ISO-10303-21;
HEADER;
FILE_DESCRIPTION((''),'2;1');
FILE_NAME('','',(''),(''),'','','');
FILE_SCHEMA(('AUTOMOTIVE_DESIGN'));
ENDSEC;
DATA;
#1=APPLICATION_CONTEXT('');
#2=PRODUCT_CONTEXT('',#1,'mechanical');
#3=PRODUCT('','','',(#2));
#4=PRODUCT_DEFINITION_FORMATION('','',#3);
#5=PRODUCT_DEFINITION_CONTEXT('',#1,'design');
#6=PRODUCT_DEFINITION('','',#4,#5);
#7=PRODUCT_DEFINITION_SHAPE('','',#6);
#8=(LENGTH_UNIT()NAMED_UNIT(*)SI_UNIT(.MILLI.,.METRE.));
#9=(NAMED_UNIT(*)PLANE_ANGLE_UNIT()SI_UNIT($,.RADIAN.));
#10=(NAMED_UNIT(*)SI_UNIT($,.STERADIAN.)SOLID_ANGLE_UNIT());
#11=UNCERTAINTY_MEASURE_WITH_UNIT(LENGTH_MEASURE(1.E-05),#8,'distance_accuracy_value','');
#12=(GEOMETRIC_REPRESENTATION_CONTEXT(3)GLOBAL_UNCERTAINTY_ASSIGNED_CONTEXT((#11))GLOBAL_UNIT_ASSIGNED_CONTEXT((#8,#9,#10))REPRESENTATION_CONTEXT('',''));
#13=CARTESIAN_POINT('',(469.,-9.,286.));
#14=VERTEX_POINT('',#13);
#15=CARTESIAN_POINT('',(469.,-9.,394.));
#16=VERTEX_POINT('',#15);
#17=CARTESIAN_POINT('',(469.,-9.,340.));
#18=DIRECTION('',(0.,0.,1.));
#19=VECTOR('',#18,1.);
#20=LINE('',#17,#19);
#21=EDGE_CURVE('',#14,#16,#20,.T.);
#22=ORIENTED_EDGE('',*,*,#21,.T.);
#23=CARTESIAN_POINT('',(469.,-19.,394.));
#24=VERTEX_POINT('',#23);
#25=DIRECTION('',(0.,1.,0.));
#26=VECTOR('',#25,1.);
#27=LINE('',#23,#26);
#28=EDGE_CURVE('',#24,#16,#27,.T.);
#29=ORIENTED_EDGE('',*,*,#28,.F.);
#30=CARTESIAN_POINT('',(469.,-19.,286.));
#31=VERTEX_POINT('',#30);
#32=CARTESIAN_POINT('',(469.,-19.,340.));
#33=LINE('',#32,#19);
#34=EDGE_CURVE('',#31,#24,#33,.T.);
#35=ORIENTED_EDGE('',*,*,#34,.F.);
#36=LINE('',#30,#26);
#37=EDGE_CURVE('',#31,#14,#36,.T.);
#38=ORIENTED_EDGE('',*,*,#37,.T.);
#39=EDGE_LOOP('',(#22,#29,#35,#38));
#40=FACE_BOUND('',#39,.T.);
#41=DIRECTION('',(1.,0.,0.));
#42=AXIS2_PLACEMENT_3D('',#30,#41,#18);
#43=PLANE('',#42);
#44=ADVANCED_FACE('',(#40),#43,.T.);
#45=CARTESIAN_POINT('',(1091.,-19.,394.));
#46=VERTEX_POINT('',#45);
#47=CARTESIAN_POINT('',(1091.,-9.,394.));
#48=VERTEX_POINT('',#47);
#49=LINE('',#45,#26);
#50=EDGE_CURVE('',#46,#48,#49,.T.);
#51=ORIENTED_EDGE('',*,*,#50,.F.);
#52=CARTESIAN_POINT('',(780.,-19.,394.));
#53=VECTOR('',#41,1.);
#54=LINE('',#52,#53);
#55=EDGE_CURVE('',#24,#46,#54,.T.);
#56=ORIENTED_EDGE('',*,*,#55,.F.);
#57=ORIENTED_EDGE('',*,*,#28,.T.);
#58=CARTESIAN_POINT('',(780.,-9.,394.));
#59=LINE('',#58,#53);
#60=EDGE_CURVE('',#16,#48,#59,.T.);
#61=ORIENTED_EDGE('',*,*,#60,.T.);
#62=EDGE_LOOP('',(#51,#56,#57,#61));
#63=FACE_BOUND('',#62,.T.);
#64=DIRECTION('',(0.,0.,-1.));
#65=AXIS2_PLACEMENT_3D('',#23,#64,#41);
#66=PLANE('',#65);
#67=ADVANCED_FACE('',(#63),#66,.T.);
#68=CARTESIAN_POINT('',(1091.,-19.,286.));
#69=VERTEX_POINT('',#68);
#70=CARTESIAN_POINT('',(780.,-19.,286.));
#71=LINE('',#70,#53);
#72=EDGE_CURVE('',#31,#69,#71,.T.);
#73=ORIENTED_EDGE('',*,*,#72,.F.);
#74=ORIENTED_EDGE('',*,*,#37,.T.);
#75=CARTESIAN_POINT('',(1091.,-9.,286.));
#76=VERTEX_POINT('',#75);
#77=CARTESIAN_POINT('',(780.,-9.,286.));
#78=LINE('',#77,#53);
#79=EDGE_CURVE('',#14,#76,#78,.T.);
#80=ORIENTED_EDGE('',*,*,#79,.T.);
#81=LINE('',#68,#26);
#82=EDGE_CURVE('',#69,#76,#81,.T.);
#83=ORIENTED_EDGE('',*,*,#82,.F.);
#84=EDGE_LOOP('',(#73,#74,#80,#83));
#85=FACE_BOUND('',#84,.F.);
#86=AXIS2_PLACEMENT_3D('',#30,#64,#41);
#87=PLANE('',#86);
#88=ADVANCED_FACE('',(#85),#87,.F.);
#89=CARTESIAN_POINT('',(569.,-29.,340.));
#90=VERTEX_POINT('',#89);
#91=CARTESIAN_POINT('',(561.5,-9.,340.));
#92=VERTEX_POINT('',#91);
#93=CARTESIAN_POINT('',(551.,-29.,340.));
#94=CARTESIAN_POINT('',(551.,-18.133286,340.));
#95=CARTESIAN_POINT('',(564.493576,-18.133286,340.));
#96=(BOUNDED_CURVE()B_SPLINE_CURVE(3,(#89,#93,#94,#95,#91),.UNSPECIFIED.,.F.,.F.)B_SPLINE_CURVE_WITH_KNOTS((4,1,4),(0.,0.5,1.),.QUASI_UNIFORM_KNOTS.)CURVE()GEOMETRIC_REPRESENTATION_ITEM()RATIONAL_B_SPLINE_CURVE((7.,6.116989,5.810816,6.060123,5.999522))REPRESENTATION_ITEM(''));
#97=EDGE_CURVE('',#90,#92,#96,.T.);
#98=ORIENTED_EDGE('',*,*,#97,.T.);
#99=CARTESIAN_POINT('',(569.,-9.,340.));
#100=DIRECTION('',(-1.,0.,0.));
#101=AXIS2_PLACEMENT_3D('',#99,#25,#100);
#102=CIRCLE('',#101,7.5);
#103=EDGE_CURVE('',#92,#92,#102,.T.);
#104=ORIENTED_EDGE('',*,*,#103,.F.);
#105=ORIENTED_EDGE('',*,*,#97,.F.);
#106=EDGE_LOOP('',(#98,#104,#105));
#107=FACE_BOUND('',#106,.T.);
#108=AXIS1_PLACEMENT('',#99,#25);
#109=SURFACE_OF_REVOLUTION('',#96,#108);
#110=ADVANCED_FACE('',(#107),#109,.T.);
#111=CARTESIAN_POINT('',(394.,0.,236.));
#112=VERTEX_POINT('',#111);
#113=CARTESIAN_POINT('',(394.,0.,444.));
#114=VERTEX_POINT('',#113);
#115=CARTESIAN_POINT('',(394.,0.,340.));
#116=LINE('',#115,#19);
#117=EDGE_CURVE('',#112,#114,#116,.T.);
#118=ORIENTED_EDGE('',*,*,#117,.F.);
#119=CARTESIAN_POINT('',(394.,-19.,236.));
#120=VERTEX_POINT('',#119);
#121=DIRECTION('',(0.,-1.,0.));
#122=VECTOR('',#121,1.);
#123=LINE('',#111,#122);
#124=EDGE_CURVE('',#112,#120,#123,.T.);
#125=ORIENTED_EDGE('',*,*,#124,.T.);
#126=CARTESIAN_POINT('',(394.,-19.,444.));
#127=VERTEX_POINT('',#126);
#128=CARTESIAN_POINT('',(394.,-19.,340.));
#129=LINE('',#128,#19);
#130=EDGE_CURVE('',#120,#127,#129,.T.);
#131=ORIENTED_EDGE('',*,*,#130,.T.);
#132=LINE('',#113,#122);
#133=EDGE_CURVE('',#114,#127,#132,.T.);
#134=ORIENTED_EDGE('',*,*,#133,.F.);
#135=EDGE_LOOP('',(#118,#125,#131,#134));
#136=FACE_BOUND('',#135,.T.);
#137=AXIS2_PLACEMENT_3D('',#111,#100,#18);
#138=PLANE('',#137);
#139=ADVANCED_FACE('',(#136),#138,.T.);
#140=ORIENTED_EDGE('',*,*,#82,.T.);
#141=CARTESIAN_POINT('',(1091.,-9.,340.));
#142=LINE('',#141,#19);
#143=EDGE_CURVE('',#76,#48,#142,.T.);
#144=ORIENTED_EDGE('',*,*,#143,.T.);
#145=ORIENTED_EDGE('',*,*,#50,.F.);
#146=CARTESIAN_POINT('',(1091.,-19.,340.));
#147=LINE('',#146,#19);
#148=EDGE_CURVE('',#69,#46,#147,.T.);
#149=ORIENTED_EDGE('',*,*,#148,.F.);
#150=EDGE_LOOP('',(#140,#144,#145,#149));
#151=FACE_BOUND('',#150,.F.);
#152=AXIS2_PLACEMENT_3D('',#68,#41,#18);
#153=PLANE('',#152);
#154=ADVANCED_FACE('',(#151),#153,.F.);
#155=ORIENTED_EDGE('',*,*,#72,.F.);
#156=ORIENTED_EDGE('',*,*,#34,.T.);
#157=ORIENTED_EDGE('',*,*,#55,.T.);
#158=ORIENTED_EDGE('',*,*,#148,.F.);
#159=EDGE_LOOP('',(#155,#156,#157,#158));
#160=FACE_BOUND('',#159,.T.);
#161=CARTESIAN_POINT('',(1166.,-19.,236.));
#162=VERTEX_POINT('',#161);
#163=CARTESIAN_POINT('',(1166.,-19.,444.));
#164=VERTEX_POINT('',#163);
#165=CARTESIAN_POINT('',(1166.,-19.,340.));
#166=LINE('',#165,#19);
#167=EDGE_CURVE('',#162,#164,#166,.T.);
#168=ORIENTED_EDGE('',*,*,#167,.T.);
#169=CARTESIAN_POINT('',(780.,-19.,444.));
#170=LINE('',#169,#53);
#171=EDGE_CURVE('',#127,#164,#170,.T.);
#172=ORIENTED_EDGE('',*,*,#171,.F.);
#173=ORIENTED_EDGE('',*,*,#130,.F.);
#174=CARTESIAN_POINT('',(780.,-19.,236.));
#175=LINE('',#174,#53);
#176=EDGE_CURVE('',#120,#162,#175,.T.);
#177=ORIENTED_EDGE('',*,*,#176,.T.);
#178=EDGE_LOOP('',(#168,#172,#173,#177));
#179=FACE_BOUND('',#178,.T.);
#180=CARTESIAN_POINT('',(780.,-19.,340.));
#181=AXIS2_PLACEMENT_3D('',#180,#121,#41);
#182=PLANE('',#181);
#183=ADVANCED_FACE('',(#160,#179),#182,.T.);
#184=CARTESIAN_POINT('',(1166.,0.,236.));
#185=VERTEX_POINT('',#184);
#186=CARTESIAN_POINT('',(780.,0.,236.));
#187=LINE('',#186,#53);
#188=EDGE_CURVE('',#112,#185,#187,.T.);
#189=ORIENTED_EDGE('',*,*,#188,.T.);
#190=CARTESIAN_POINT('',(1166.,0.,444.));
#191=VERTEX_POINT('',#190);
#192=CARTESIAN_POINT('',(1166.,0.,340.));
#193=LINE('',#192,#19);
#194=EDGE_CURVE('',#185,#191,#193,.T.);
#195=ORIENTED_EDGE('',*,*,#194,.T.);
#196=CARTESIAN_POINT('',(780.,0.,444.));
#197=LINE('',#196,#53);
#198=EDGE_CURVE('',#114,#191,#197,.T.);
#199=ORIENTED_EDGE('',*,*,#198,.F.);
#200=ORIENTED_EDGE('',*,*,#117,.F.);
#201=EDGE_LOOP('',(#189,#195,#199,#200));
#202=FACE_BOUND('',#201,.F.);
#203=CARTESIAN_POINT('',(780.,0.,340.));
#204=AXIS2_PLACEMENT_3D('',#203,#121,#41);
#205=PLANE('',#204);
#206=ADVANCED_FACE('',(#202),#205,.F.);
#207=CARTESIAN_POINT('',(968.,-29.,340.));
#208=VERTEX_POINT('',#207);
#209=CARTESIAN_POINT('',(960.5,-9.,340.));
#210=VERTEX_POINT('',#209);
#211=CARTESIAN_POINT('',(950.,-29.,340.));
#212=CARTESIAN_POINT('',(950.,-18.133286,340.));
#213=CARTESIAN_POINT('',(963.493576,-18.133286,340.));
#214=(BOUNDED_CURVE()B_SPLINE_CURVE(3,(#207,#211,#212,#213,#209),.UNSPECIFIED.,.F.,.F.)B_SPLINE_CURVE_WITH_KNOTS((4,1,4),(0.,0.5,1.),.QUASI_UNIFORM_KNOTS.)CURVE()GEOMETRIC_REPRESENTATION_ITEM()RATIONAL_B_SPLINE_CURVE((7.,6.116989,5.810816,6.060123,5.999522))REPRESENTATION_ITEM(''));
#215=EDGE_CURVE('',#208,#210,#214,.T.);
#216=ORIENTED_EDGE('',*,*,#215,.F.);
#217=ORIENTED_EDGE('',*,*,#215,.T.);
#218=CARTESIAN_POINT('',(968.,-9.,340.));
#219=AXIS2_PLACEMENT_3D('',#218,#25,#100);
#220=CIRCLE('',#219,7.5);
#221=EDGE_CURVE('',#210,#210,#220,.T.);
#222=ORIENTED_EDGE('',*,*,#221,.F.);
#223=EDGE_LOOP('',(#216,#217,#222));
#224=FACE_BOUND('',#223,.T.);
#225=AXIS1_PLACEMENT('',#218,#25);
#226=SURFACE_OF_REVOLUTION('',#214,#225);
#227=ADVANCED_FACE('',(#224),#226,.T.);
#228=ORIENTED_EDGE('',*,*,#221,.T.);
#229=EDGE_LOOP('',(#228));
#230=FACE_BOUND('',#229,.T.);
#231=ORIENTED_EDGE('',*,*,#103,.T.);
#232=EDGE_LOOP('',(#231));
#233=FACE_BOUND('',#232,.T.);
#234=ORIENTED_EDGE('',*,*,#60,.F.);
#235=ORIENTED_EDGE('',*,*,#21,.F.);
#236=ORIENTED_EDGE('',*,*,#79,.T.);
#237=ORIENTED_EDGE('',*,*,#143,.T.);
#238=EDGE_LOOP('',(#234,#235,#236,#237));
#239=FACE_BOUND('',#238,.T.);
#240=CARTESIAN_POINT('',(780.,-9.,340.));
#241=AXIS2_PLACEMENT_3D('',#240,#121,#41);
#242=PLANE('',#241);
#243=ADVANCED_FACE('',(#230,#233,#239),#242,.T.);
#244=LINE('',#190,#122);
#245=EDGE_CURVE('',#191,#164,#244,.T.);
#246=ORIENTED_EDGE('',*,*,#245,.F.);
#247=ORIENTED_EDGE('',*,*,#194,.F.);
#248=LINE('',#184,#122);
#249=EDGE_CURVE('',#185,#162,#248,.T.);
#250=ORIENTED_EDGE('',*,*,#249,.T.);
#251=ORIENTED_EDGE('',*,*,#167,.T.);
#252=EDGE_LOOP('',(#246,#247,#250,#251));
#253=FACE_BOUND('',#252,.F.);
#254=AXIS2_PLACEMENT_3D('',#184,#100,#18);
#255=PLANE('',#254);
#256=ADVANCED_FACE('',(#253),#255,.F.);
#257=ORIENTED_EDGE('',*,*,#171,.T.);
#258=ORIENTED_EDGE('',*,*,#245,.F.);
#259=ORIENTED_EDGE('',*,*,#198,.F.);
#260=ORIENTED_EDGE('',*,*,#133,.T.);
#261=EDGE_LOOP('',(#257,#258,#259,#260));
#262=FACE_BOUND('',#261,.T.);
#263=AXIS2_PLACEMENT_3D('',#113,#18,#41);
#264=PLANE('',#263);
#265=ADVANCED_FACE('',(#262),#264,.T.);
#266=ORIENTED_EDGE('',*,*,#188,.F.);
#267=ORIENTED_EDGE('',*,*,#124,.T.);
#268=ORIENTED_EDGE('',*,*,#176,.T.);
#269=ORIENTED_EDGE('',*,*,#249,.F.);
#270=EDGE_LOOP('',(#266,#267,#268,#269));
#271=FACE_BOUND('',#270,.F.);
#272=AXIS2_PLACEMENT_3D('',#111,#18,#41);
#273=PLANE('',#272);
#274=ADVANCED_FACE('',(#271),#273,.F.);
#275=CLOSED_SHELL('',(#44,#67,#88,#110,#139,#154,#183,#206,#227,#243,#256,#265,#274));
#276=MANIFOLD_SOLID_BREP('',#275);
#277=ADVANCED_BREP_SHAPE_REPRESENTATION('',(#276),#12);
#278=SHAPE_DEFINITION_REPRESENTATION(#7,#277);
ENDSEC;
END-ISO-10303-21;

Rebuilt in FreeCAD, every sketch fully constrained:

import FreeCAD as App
import Part
import Sketcher
from FreeCAD import Vector


def add_polygon(sketch, points):
    """Adds a closed chain of lines whose ends are joined by coincident constraints."""
    first, n = sketch.GeometryCount, len(points)
    for a, b in zip(points, points[1:] + points[:1]):
        sketch.addGeometry(Part.LineSegment(App.Vector(*a, 0), App.Vector(*b, 0)), False)
    for i in range(n):
        sketch.addConstraint(Sketcher.Constraint("Coincident", first + i, 2, first + (i + 1) % n, 1))

doc = App.newDocument("Part")
body = doc.addObject("PartDesign::Body", "Body")

# Sketch on XZ plane
sketch1 = body.newObject("Sketcher::SketchObject", "Sketch")
sketch1.AttachmentSupport = (doc.getObject("XZ_Plane"), [""])
sketch1.MapMode = "FlatFace"
add_polygon(sketch1, [(0, 208), (0, 0), (772, 0), (772, 208)])  # lines 0-3
sketch1.addConstraint(Sketcher.Constraint("Vertical", 0))
sketch1.addConstraint(Sketcher.Constraint("Horizontal", 1))
sketch1.addConstraint(Sketcher.Constraint("Vertical", 2))
sketch1.addConstraint(Sketcher.Constraint("Horizontal", 3))
sketch1.addConstraint(Sketcher.Constraint("Coincident", 0, 2, -1, 1))
sketch1.addConstraint(Sketcher.Constraint("DistanceX", 1, 1, 1, 2, 772.0))
sketch1.addConstraint(Sketcher.Constraint("DistanceY", 0, 2, 0, 1, 208.0))
pad1 = body.newObject("PartDesign::Pad", "Pad")
pad1.Profile = sketch1
pad1.Length = 19

# Sketch on XZ plane
sketch2 = body.newObject("Sketcher::SketchObject", "Sketch001")
sketch2.AttachmentSupport = (doc.getObject("XZ_Plane"), [""])
sketch2.MapMode = "FlatFace"
sketch2.AttachmentOffset = App.Placement(Vector(0, 0, 19), App.Rotation())
add_polygon(sketch2, [(75, 158), (75, 50), (697, 50), (697, 158)])  # lines 0-3
sketch2.addConstraint(Sketcher.Constraint("Vertical", 0))
sketch2.addConstraint(Sketcher.Constraint("Horizontal", 1))
sketch2.addConstraint(Sketcher.Constraint("Vertical", 2))
sketch2.addConstraint(Sketcher.Constraint("Horizontal", 3))
sketch2.addConstraint(Sketcher.Constraint("DistanceX", 1, 1, 1, 2, 622.0))
sketch2.addConstraint(Sketcher.Constraint("DistanceY", 0, 2, 0, 1, 108.0))
sketch2.addConstraint(Sketcher.Constraint("DistanceX", -1, 1, 0, 2, 75.0))
sketch2.addConstraint(Sketcher.Constraint("DistanceY", -1, 1, 0, 2, 50.0))
pocket1 = body.newObject("PartDesign::Pocket", "Pocket")
pocket1.Profile = sketch2
pocket1.Length = 10

# Sketch on XY plane
sketch3 = body.newObject("Sketcher::SketchObject", "Sketch002")
sketch3.AttachmentSupport = (doc.getObject("XY_Plane"), [""])
sketch3.MapMode = "FlatFace"
sketch3.AttachmentOffset = App.Placement(Vector(0, 0, 104), App.Rotation())
sketch3.addGeometry(Part.LineSegment(Vector(175, -29, 0), Vector(175, -9, 0)), False)
sketch3.addGeometry(Part.LineSegment(Vector(175, -9, 0), Vector(167.5, -9, 0)), False)
sketch3.addGeometry(Part.BSplineCurve([Vector(175, -29, 0), Vector(157, -29, 0), Vector(157, -18.133286, 0), Vector(170.493576, -18.133286, 0), Vector(167.5, -9, 0)], [4, 1, 4], [0, 0.5, 1], False, 3, [7, 6.116989, 5.810816, 6.060123, 5.999522], False), False)
sketch3.addGeometry(Part.LineSegment(Vector(175, -29, 0), Vector(175, -9, 0)), True)  # axis
sketch3.addConstraint(Sketcher.Constraint("Block", 2))
sketch3.addConstraint(Sketcher.Constraint("Coincident", 0, 2, 1, 1))
sketch3.addConstraint(Sketcher.Constraint("Coincident", 1, 2, 2, 2))
sketch3.addConstraint(Sketcher.Constraint("Coincident", 2, 1, 0, 1))
sketch3.addConstraint(Sketcher.Constraint("Vertical", 0))
sketch3.addConstraint(Sketcher.Constraint("Horizontal", 1))
sketch3.addConstraint(Sketcher.Constraint("Vertical", 3))
sketch3.addConstraint(Sketcher.Constraint("Coincident", 3, 2, 0, 2))
sketch3.addConstraint(Sketcher.Constraint("Equal", 0, 3))
revolution = body.newObject("PartDesign::Revolution", "Revolution")
revolution.Profile = sketch3
revolution.ReferenceAxis = (sketch3, ["Axis0"])
revolution.Angle = 360

# Sketch on XY plane
sketch4 = body.newObject("Sketcher::SketchObject", "Sketch003")
sketch4.AttachmentSupport = (doc.getObject("XY_Plane"), [""])
sketch4.MapMode = "FlatFace"
sketch4.AttachmentOffset = App.Placement(Vector(0, 0, 104), App.Rotation())
sketch4.addGeometry(Part.LineSegment(Vector(574, -29, 0), Vector(574, -9, 0)), False)
sketch4.addGeometry(Part.LineSegment(Vector(574, -9, 0), Vector(566.5, -9, 0)), False)
sketch4.addGeometry(Part.BSplineCurve([Vector(574, -29, 0), Vector(556, -29, 0), Vector(556, -18.133286, 0), Vector(569.493576, -18.133286, 0), Vector(566.5, -9, 0)], [4, 1, 4], [0, 0.5, 1], False, 3, [7, 6.116989, 5.810816, 6.060123, 5.999522], False), False)
sketch4.addGeometry(Part.LineSegment(Vector(574, -29, 0), Vector(574, -9, 0)), True)  # axis
sketch4.addConstraint(Sketcher.Constraint("Block", 2))
sketch4.addConstraint(Sketcher.Constraint("Coincident", 0, 2, 1, 1))
sketch4.addConstraint(Sketcher.Constraint("Coincident", 1, 2, 2, 2))
sketch4.addConstraint(Sketcher.Constraint("Coincident", 2, 1, 0, 1))
sketch4.addConstraint(Sketcher.Constraint("Vertical", 0))
sketch4.addConstraint(Sketcher.Constraint("Horizontal", 1))
sketch4.addConstraint(Sketcher.Constraint("Vertical", 3))
sketch4.addConstraint(Sketcher.Constraint("Coincident", 3, 2, 0, 2))
sketch4.addConstraint(Sketcher.Constraint("Equal", 0, 3))
revolution2 = body.newObject("PartDesign::Revolution", "Revolution001")
revolution2.Profile = sketch4
revolution2.ReferenceAxis = (sketch4, ["Axis0"])
revolution2.Angle = 360
body2 = doc.addObject("PartDesign::Body", "Body001")
doc.recompute()

body.Placement = App.Placement(Vector(394, 0, 236), App.Rotation(Vector(0, 0, 1), 0))
boolean = body2.newObject("PartDesign::Boolean", "Boolean")
boolean.Type = "Fuse"
boolean.addObjects([body])

doc.recompute()
